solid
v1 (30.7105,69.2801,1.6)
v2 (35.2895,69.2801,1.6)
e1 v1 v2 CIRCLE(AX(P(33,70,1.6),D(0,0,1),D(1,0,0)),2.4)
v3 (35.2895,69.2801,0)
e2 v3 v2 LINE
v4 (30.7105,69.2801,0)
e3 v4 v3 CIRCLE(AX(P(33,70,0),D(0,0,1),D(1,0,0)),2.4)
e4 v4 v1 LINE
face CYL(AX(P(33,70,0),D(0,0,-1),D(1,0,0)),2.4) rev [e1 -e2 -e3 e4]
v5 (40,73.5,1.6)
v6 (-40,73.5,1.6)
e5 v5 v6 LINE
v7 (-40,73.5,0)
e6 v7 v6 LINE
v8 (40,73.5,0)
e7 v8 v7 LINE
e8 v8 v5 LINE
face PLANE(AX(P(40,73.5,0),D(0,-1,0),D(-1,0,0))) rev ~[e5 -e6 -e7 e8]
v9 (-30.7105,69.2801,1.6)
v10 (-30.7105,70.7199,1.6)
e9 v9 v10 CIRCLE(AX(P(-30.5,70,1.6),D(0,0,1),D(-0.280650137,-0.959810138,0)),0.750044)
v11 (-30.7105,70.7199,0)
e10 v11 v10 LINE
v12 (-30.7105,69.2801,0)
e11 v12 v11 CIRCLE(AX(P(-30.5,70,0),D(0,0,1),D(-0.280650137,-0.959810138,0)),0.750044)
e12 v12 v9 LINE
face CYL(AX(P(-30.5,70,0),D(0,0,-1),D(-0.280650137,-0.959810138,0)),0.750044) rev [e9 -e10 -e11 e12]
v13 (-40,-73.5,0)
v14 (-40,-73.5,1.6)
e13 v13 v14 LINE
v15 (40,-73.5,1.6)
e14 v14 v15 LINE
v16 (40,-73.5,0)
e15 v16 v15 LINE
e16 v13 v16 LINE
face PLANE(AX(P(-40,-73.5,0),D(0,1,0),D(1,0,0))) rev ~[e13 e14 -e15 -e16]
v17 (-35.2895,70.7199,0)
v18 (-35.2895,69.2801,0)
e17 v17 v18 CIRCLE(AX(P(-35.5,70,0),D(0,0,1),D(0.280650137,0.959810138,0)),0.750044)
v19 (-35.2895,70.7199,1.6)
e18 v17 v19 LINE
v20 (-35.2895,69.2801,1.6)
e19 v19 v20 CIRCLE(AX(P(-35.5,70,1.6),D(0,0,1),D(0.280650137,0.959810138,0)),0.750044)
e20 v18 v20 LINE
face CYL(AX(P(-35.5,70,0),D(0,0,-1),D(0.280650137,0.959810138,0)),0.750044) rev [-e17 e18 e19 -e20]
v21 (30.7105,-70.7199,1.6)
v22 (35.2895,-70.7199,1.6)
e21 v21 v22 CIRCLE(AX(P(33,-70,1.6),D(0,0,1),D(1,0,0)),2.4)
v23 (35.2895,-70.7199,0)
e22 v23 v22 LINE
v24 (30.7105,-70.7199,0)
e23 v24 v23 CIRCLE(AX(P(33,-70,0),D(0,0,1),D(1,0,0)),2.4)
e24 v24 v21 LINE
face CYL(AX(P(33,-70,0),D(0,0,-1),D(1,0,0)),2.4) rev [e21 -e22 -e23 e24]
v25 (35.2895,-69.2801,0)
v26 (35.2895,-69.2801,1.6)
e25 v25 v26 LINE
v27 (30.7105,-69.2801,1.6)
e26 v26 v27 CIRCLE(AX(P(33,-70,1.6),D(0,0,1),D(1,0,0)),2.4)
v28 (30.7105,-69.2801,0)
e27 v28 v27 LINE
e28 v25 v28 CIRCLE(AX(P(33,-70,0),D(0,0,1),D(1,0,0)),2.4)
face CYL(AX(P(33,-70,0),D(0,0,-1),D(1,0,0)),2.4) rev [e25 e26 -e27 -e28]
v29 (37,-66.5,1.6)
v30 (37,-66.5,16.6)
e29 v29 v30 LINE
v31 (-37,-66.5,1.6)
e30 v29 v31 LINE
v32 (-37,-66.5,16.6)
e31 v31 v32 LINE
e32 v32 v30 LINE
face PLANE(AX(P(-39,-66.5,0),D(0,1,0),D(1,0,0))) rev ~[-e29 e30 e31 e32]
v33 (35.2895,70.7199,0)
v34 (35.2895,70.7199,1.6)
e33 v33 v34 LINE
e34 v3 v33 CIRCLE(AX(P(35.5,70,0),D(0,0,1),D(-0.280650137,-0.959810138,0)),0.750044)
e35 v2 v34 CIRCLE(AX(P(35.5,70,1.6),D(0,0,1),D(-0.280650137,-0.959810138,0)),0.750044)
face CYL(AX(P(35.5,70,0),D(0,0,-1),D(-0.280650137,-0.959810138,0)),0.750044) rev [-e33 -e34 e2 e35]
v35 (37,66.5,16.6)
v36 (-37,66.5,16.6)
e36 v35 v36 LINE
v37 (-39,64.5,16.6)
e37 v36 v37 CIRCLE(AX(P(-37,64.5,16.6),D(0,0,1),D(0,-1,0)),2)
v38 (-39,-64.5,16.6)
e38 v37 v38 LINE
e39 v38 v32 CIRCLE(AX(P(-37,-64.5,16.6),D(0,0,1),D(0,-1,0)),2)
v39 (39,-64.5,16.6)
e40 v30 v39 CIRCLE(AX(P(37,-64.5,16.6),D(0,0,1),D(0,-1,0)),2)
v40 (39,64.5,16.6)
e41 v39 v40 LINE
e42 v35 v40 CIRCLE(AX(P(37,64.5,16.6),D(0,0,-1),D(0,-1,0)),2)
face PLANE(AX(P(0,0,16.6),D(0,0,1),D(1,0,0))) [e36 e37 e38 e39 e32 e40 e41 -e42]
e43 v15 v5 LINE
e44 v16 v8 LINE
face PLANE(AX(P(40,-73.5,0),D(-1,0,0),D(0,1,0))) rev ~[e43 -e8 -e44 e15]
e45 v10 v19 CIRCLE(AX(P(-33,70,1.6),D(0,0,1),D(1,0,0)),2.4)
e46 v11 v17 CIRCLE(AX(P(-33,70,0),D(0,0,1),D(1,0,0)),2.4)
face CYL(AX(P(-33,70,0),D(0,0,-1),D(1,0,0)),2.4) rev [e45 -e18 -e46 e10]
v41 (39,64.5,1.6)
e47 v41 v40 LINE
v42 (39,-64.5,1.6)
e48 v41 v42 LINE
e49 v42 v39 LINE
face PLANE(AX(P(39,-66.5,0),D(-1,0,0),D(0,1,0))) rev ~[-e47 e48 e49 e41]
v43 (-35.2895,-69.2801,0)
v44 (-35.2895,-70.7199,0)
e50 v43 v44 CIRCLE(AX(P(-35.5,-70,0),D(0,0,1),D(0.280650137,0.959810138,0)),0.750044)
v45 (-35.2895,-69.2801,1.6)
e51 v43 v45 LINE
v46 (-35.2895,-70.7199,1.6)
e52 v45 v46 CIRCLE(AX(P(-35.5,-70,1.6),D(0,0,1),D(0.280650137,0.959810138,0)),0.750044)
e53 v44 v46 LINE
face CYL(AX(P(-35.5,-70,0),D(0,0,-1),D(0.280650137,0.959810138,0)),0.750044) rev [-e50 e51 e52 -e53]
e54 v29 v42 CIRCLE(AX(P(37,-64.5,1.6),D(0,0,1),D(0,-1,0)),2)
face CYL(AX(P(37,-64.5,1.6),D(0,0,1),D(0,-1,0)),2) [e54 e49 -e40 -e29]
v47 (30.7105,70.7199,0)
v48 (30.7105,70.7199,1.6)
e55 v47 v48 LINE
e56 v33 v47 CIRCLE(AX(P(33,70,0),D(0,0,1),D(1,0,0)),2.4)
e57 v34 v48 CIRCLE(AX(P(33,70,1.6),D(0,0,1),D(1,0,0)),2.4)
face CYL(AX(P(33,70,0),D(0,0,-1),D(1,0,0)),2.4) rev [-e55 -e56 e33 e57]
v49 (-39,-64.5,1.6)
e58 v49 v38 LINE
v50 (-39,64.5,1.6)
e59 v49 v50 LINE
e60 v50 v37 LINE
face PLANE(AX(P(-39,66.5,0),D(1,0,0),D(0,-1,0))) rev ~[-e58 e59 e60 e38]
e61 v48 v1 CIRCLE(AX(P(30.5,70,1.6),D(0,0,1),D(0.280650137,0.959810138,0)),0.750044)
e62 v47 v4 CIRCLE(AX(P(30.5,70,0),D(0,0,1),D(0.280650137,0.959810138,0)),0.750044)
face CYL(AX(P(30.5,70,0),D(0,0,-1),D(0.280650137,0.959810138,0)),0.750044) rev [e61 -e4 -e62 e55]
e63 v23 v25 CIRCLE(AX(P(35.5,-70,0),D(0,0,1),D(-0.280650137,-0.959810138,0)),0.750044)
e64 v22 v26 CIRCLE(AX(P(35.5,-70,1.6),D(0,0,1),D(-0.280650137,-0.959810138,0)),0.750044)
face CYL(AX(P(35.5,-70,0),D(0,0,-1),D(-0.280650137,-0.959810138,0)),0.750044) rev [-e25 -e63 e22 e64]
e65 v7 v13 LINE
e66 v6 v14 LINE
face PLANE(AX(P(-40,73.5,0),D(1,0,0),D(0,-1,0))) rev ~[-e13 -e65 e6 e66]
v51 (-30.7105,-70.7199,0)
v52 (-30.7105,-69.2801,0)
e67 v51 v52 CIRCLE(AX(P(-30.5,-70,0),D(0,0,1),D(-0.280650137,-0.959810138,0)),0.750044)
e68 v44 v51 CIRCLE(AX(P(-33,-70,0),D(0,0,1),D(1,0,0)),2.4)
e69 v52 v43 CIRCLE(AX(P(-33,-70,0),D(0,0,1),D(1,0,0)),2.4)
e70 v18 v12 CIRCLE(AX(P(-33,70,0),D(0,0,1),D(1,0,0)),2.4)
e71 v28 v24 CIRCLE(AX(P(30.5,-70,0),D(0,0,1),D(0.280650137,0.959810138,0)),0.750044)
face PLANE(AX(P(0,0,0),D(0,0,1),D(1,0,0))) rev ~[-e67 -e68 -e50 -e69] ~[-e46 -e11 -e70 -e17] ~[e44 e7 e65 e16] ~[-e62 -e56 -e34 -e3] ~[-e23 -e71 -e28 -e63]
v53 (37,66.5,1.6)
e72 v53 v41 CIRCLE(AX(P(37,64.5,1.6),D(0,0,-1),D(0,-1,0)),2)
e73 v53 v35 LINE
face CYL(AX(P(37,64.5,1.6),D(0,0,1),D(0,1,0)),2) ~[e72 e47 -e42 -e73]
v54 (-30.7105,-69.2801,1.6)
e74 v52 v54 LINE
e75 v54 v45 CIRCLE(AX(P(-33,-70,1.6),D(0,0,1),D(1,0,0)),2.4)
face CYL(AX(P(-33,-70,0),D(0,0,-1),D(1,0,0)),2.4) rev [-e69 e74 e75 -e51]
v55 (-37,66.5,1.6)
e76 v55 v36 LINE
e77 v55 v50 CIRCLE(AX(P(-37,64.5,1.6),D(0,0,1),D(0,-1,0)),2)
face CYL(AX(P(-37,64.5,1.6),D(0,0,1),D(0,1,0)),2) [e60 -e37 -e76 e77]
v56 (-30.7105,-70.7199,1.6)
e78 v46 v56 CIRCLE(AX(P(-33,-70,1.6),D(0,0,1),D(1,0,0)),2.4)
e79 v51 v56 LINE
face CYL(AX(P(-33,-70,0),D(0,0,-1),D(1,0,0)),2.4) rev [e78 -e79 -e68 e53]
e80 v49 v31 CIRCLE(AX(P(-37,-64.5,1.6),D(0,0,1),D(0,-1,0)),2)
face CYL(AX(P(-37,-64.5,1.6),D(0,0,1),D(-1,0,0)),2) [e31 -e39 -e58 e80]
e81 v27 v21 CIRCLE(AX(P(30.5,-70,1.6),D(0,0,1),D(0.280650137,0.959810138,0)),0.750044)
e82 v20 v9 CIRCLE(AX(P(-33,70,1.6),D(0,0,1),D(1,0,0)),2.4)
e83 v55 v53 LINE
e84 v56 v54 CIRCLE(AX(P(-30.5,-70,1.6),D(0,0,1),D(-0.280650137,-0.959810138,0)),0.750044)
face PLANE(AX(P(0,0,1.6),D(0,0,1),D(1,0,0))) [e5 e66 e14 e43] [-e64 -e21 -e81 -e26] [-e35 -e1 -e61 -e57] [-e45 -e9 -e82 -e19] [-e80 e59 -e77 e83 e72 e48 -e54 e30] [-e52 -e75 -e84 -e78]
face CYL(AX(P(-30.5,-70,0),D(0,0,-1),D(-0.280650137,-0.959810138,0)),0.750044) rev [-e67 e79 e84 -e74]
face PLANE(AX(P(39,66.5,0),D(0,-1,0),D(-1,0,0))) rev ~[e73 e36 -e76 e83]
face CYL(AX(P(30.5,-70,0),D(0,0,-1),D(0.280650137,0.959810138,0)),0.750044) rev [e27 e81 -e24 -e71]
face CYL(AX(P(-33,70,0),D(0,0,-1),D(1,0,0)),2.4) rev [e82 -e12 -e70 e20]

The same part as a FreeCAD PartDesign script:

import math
import FreeCAD as App
import Part
import Sketcher
Q = App.Units.Quantity


def edges_at(feature, points):
    """Names of the edges that pass closest to the given points."""
    edges = feature.Shape.Edges
    near = lambda p: min(range(len(edges)), key=lambda i: edges[i].distToShape(Part.Vertex(*p))[0])
    return sorted({f"Edge{near(p) + 1}" for p in points})

doc = App.newDocument("Part")
params = doc.addObject("Spreadsheet::Sheet", "Params")
for row, (alias, value) in enumerate([
    ("sketch1_radius", "2.4 mm"),
    ("sketch1_width", "80 mm"),
    ("sketch1_height", "147 mm"),
    ("sketch1_radius2", "0.75 mm"),
    ("pad1_length", "1.6 mm"),
    ("sketch2_width", "78 mm"),
    ("sketch2_height", "133 mm"),
    ("pad2_length", "16.6 mm"),
    ("fillet_radius", "2 mm"),
], start=1):
    params.set(f"A{row}", alias)
    params.set(f"B{row}", "=" + value)
    params.setAlias(f"B{row}", alias)

body = doc.addObject("PartDesign::Body", "Body")

# Sketch on XY plane
sketch1 = body.newObject("Sketcher::SketchObject", "Sketch")
sketch1.AttachmentSupport = (doc.getObject("XY_Plane"), [""])
sketch1.MapMode = "FlatFace"
sketch1.addGeometry(Part.LineSegment(App.Vector(40, -73.5, 0), App.Vector(40, 73.5, 0)), False)
sketch1.addGeometry(Part.LineSegment(App.Vector(40, 73.5, 0), App.Vector(-40, 73.5, 0)), False)
sketch1.addGeometry(Part.LineSegment(App.Vector(-40, 73.5, 0), App.Vector(-40, -73.5, 0)), False)
sketch1.addGeometry(Part.LineSegment(App.Vector(-40, -73.5, 0), App.Vector(40, -73.5, 0)), False)
sketch1.addGeometry(Part.ArcOfCircle(Part.Circle(App.Vector(-33, -70, 0), App.Vector(0, 0, 1), 2.4), math.radians(17), math.radians(163)), False)
sketch1.addGeometry(Part.ArcOfCircle(Part.Circle(App.Vector(-30.5, -70, 0), App.Vector(0, 0, 1), 0.8), math.radians(-106), math.radians(106)), False)
sketch1.addGeometry(Part.ArcOfCircle(Part.Circle(App.Vector(-33, -70, 0), App.Vector(0, 0, 1), 2.4), math.radians(-163), math.radians(-17)), False)
sketch1.addGeometry(Part.ArcOfCircle(Part.Circle(App.Vector(-35.5, -70, 0), App.Vector(0, 0, 1), 0.8), math.radians(74), math.radians(286)), False)
sketch1.addGeometry(Part.ArcOfCircle(Part.Circle(App.Vector(33, -70, 0), App.Vector(0, 0, 1), 2.4), math.radians(17), math.radians(163)), False)
sketch1.addGeometry(Part.ArcOfCircle(Part.Circle(App.Vector(35.5, -70, 0), App.Vector(0, 0, 1), 0.8), math.radians(-106), math.radians(106)), False)
sketch1.addGeometry(Part.ArcOfCircle(Part.Circle(App.Vector(33, -70, 0), App.Vector(0, 0, 1), 2.4), math.radians(-163), math.radians(-17)), False)
sketch1.addGeometry(Part.ArcOfCircle(Part.Circle(App.Vector(30.5, -70, 0), App.Vector(0, 0, 1), 0.8), math.radians(74), math.radians(286)), False)
sketch1.addGeometry(Part.ArcOfCircle(Part.Circle(App.Vector(-33, 70, 0), App.Vector(0, 0, 1), 2.4), math.radians(17), math.radians(163)), False)
sketch1.addGeometry(Part.ArcOfCircle(Part.Circle(App.Vector(-30.5, 70, 0), App.Vector(0, 0, 1), 0.8), math.radians(-106), math.radians(106)), False)
sketch1.addGeometry(Part.ArcOfCircle(Part.Circle(App.Vector(-33, 70, 0), App.Vector(0, 0, 1), 2.4), math.radians(-163), math.radians(-17)), False)
sketch1.addGeometry(Part.ArcOfCircle(Part.Circle(App.Vector(-35.5, 70, 0), App.Vector(0, 0, 1), 0.8), math.radians(74), math.radians(286)), False)
sketch1.addGeometry(Part.ArcOfCircle(Part.Circle(App.Vector(33, 70, 0), App.Vector(0, 0, 1), 2.4), math.radians(17), math.radians(163)), False)
sketch1.addGeometry(Part.ArcOfCircle(Part.Circle(App.Vector(35.5, 70, 0), App.Vector(0, 0, 1), 0.8), math.radians(-106), math.radians(106)), False)
sketch1.addGeometry(Part.ArcOfCircle(Part.Circle(App.Vector(33, 70, 0), App.Vector(0, 0, 1), 2.4), math.radians(-163), math.radians(-17)), False)
sketch1.addGeometry(Part.ArcOfCircle(Part.Circle(App.Vector(30.5, 70, 0), App.Vector(0, 0, 1), 0.8), math.radians(74), math.radians(286)), False)
sketch1.addConstraint(Sketcher.Constraint("Coincident", 0, 2, 1, 1))
sketch1.addConstraint(Sketcher.Constraint("Coincident", 1, 2, 2, 1))
sketch1.addConstraint(Sketcher.Constraint("Coincident", 2, 2, 3, 1))
sketch1.addConstraint(Sketcher.Constraint("Coincident", 3, 2, 0, 1))
sketch1.addConstraint(Sketcher.Constraint("Coincident", 4, 1, 5, 2))
sketch1.addConstraint(Sketcher.Constraint("Coincident", 5, 1, 6, 2))
sketch1.addConstraint(Sketcher.Constraint("Coincident", 6, 1, 7, 2))
sketch1.addConstraint(Sketcher.Constraint("Coincident", 7, 1, 4, 2))
sketch1.addConstraint(Sketcher.Constraint("Coincident", 8, 1, 9, 2))
sketch1.addConstraint(Sketcher.Constraint("Coincident", 9, 1, 10, 2))
sketch1.addConstraint(Sketcher.Constraint("Coincident", 10, 1, 11, 2))
sketch1.addConstraint(Sketcher.Constraint("Coincident", 11, 1, 8, 2))
sketch1.addConstraint(Sketcher.Constraint("Coincident", 12, 1, 13, 2))
sketch1.addConstraint(Sketcher.Constraint("Coincident", 13, 1, 14, 2))
sketch1.addConstraint(Sketcher.Constraint("Coincident", 14, 1, 15, 2))
sketch1.addConstraint(Sketcher.Constraint("Coincident", 15, 1, 12, 2))
sketch1.addConstraint(Sketcher.Constraint("Coincident", 16, 1, 17, 2))
sketch1.addConstraint(Sketcher.Constraint("Coincident", 17, 1, 18, 2))
sketch1.addConstraint(Sketcher.Constraint("Coincident", 18, 1, 19, 2))
sketch1.addConstraint(Sketcher.Constraint("Coincident", 19, 1, 16, 2))
sketch1.addConstraint(Sketcher.Constraint("Vertical", 0))
sketch1.addConstraint(Sketcher.Constraint("Horizontal", 1))
sketch1.addConstraint(Sketcher.Constraint("Vertical", 2))
sketch1.addConstraint(Sketcher.Constraint("Horizontal", 3))
sketch1.addConstraint(Sketcher.Constraint("Coincident", 6, 3, 4, 3))
sketch1.addConstraint(Sketcher.Constraint("Coincident", 10, 3, 8, 3))
sketch1.addConstraint(Sketcher.Constraint("Coincident", 14, 3, 12, 3))
sketch1.addConstraint(Sketcher.Constraint("Coincident", 18, 3, 16, 3))
sketch1.addConstraint(Sketcher.Constraint("Equal", 4, 6))
sketch1.addConstraint(Sketcher.Constraint("Equal", 5, 7))
sketch1.addConstraint(Sketcher.Constraint("Equal", 6, 8))
sketch1.addConstraint(Sketcher.Constraint("Equal", 7, 9))
sketch1.addConstraint(Sketcher.Constraint("Equal", 8, 10))
sketch1.addConstraint(Sketcher.Constraint("Equal", 9, 11))
sketch1.addConstraint(Sketcher.Constraint("Equal", 10, 12))
sketch1.addConstraint(Sketcher.Constraint("Equal", 11, 13))
sketch1.addConstraint(Sketcher.Constraint("Equal", 12, 14))
sketch1.addConstraint(Sketcher.Constraint("Equal", 13, 15))
sketch1.addConstraint(Sketcher.Constraint("Equal", 14, 16))
sketch1.addConstraint(Sketcher.Constraint("Equal", 15, 17))
sketch1.addConstraint(Sketcher.Constraint("Equal", 16, 18))
sketch1.addConstraint(Sketcher.Constraint("Equal", 17, 19))
sketch1.addConstraint(Sketcher.Constraint("Symmetric", 8, 3, 12, 3, -1, 1))
sketch1.addConstraint(Sketcher.Constraint("Symmetric", 11, 3, 13, 3, -1, 1))
sketch1.addConstraint(Sketcher.Constraint("Symmetric", 9, 3, 15, 3, -1, 1))
sketch1.addConstraint(Sketcher.Constraint("Symmetric", 4, 3, 16, 3, -1, 1))
sketch1.addConstraint(Sketcher.Constraint("Symmetric", 7, 3, 17, 3, -1, 1))
sketch1.addConstraint(Sketcher.Constraint("Symmetric", 5, 3, 19, 3, -1, 1))
sketch1.addConstraint(Sketcher.Constraint("Symmetric", 0, 2, 2, 2, -1, 1))
sketch1.addConstraint(Sketcher.Constraint("Symmetric", 4, 3, 8, 3, -2))
sketch1.addConstraint(Sketcher.Constraint("Symmetric", 7, 3, 9, 3, -2))
sketch1.addConstraint(Sketcher.Constraint("Symmetric", 5, 3, 11, 3, -2))
sketch1.addConstraint(Sketcher.Constraint("Horizontal", 4, 3, 5, 3))
sketch1.addConstraint(Sketcher.Constraint("Horizontal", 6, 3, 7, 3))
sketch1.addConstraint(Sketcher.Constraint("Horizontal", 5, 1, 6, 1))
sketch1.addConstraint(Sketcher.Constraint("Radius", 4, Q("2.4 mm")))
sketch1.addConstraint(Sketcher.Constraint("DistanceX", 1, 2, 1, 1, Q("80 mm")))
sketch1.addConstraint(Sketcher.Constraint("DistanceY", 0, 1, 0, 2, Q("147 mm")))
sketch1.addConstraint(Sketcher.Constraint("Radius", 5, Q("0.75 mm")))
sketch1.addConstraint(Sketcher.Constraint("DistanceX", 4, 3, 8, 3, Q("66 mm")))
sketch1.addConstraint(Sketcher.Constraint("DistanceY", 4, 3, 12, 3, Q("140 mm")))
sketch1.addConstraint(Sketcher.Constraint("DistanceX", 7, 3, 5, 3, Q("5 mm")))
sketch1.setExpression("Constraints[55]", "Params.sketch1_radius")
sketch1.setExpression("Constraints[56]", "Params.sketch1_width")
sketch1.setExpression("Constraints[57]", "Params.sketch1_height")
sketch1.setExpression("Constraints[58]", "Params.sketch1_radius2")
pad1 = body.newObject("PartDesign::Pad", "Pad")
pad1.Profile = sketch1
pad1.setExpression("Length", "Params.pad1_length")

# Sketch on XY plane
sketch2 = body.newObject("Sketcher::SketchObject", "Sketch001")
sketch2.AttachmentSupport = (doc.getObject("XY_Plane"), [""])
sketch2.MapMode = "FlatFace"
sketch2.addGeometry(Part.LineSegment(App.Vector(39, -66, 0), App.Vector(39, 66, 0)), False)
sketch2.addGeometry(Part.LineSegment(App.Vector(39, 66, 0), App.Vector(-39, 66, 0)), False)
sketch2.addGeometry(Part.LineSegment(App.Vector(-39, 66, 0), App.Vector(-39, -66, 0)), False)
sketch2.addGeometry(Part.LineSegment(App.Vector(-39, -66, 0), App.Vector(39, -66, 0)), False)
sketch2.addConstraint(Sketcher.Constraint("Coincident", 0, 2, 1, 1))
sketch2.addConstraint(Sketcher.Constraint("Coincident", 1, 2, 2, 1))
sketch2.addConstraint(Sketcher.Constraint("Coincident", 2, 2, 3, 1))
sketch2.addConstraint(Sketcher.Constraint("Coincident", 3, 2, 0, 1))
sketch2.addConstraint(Sketcher.Constraint("Vertical", 0))
sketch2.addConstraint(Sketcher.Constraint("Horizontal", 1))
sketch2.addConstraint(Sketcher.Constraint("Vertical", 2))
sketch2.addConstraint(Sketcher.Constraint("Horizontal", 3))
sketch2.addConstraint(Sketcher.Constraint("Symmetric", 0, 2, 2, 2, -1, 1))
sketch2.addConstraint(Sketcher.Constraint("DistanceX", 1, 2, 1, 1, Q("78 mm")))
sketch2.addConstraint(Sketcher.Constraint("DistanceY", 0, 1, 0, 2, Q("133 mm")))
sketch2.setExpression("Constraints[9]", "Params.sketch2_width")
sketch2.setExpression("Constraints[10]", "Params.sketch2_height")
pad2 = body.newObject("PartDesign::Pad", "Pad001")
pad2.Profile = sketch2
pad2.setExpression("Length", "Params.pad2_length")
doc.recompute()

fillet = body.newObject("PartDesign::Fillet", "Fillet")
fillet.Base = (pad2, edges_at(pad2, [
    (39, -66.5, 9.1),
    (39, 66.5, 9.1),
    (-39, -66.5, 9.1),
    (-39, 66.5, 9.1),
]))
fillet.setExpression("Radius", "Params.fillet_radius")

doc.recompute()
